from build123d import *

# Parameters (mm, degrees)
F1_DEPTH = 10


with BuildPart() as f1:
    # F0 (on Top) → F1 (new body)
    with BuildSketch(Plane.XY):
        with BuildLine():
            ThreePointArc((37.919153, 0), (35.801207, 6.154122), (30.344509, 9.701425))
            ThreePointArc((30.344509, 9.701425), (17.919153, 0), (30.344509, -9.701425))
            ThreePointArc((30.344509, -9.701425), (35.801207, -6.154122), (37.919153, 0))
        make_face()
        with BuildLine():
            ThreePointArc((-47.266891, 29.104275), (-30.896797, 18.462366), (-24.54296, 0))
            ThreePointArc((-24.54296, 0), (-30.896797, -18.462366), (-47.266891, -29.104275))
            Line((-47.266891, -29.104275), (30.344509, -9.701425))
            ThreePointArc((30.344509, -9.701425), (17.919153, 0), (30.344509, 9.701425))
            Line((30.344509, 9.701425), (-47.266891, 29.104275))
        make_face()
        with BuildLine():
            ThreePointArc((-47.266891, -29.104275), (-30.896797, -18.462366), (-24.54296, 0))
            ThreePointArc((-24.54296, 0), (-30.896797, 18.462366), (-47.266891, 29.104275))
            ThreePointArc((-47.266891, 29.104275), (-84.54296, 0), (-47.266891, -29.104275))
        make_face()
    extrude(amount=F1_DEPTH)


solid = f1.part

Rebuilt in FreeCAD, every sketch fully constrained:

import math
import FreeCAD as App
import Part
import Sketcher
from FreeCAD import Vector
Q = App.Units.Quantity

doc = App.newDocument("Part")
body = doc.addObject("PartDesign::Body", "Body")

# Sketch on XY plane
sketch1 = body.newObject("Sketcher::SketchObject", "Sketch")
sketch1.AttachmentSupport = (doc.getObject("XY_Plane"), [""])
sketch1.MapMode = "FlatFace"
sketch1.addGeometry(Part.ArcOfCircle(Part.Circle(Vector(28, 0, 0), Vector(0, 0, 1), 10), math.radians(0), math.radians(76)), False)
sketch1.addGeometry(Part.LineSegment(Vector(30, 10, 0), Vector(-47, 29, 0)), False)
sketch1.addGeometry(Part.ArcOfCircle(Part.Circle(Vector(-55, 0, 0), Vector(0, 0, 1), 30), math.radians(76), math.radians(284)), False)
sketch1.addGeometry(Part.LineSegment(Vector(-47, -29, 0), Vector(30, -10, 0)), False)
sketch1.addGeometry(Part.ArcOfCircle(Part.Circle(Vector(28, 0, 0), Vector(0, 0, 1), 10), math.radians(-76), math.radians(0)), False)
sketch1.addConstraint(Sketcher.Constraint("Tangent", 0, 2, 1, 1))
sketch1.addConstraint(Sketcher.Constraint("Tangent", 1, 2, 2, 1))
sketch1.addConstraint(Sketcher.Constraint("Tangent", 2, 2, 3, 1))
sketch1.addConstraint(Sketcher.Constraint("Tangent", 3, 2, 4, 1))
sketch1.addConstraint(Sketcher.Constraint("Tangent", 4, 2, 0, 1))
sketch1.addConstraint(Sketcher.Constraint("Equal", 0, 4))
sketch1.addConstraint(Sketcher.Constraint("Symmetric", 1, 2, 2, 2, -1))
sketch1.addConstraint(Sketcher.Constraint("PointOnObject", 4, 2, -1))
sketch1.addConstraint(Sketcher.Constraint("Radius", 0, Q("10.000001 mm")))
sketch1.addConstraint(Sketcher.Constraint("Radius", 2, Q("30 mm")))
sketch1.addConstraint(Sketcher.Constraint("Distance", 1, Q("80 mm")))
sketch1.addConstraint(Sketcher.Constraint("DistanceX", -1, 1, 0, 3, Q("27.919152 mm")))
pad1 = body.newObject("PartDesign::Pad", "Pad")
pad1.Profile = sketch1
pad1.Length = 10

doc.recompute()
